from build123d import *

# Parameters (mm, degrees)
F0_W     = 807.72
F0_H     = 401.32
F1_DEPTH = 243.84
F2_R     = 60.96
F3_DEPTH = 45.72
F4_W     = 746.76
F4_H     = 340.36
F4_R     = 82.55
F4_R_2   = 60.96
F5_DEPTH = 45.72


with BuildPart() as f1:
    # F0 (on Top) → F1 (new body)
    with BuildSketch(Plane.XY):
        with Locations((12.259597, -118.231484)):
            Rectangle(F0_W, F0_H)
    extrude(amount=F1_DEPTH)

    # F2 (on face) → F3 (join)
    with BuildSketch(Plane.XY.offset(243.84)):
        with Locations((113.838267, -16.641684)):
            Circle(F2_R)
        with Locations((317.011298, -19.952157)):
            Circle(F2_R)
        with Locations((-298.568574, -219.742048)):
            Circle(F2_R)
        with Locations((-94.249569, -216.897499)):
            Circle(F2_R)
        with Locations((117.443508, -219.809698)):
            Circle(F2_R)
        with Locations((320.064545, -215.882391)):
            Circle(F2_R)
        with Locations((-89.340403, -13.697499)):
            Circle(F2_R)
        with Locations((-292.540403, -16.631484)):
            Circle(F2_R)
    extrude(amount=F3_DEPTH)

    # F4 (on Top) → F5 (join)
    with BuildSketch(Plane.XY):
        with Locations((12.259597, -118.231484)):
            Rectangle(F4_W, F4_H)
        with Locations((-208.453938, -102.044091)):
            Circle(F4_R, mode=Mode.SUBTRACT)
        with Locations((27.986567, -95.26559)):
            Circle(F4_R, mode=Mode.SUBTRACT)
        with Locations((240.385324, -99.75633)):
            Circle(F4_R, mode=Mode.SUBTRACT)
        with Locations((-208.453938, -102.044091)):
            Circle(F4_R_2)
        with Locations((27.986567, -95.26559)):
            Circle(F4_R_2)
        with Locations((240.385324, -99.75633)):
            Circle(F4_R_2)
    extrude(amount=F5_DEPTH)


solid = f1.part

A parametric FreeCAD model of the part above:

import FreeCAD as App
import Part
import Sketcher

V = App.Vector
Q = App.Units.Quantity


def add_polygon(sketch, points):
    """Adds a closed chain of lines whose ends are joined by coincident constraints."""
    first, n = sketch.GeometryCount, len(points)
    for a, b in zip(points, points[1:] + points[:1]):
        sketch.addGeometry(Part.LineSegment(App.Vector(*a, 0), App.Vector(*b, 0)), False)
    for i in range(n):
        sketch.addConstraint(Sketcher.Constraint("Coincident", first + i, 2, first + (i + 1) % n, 1))

doc = App.newDocument("Part")
params = doc.addObject("Spreadsheet::Sheet", "Params")
for row, (alias, value) in enumerate([
    ("sketch1_width", "31.8 in"),
    ("sketch1_height", "15.8 in"),
    ("pad1_length", "9.6 in"),
    ("sketch2_diameter", "4.8 in"),
    ("pad2_length", "1.8 in"),
    ("sketch3_diameter", "6.5 in"),
    ("sketch3_diameter2", "4.8 in"),
    ("sketch3_width", "29.4 in"),
    ("sketch3_height", "13.4 in"),
    ("pad3_length", "1.8 in"),
], start=1):
    params.set(f"A{row}", alias)
    params.set(f"B{row}", "=" + value)
    params.setAlias(f"B{row}", alias)

body = doc.addObject("PartDesign::Body", "Body")

# Sketch on XY plane
sketch1 = doc.addObject("Sketcher::SketchObject", "Sketch")
body.addObject(sketch1)
sketch1.AttachmentSupport = (doc.XY_Plane, [""])
sketch1.MapMode = "FlatFace"
add_polygon(sketch1, [(-392, 82), (-392, -319), (416, -319), (416, 82)])  # lines 0-3
sketch1.addConstraint(Sketcher.Constraint("Vertical", 0))
sketch1.addConstraint(Sketcher.Constraint("Horizontal", 1))
sketch1.addConstraint(Sketcher.Constraint("Vertical", 2))
sketch1.addConstraint(Sketcher.Constraint("Horizontal", 3))
sketch1.addConstraint(Sketcher.Constraint("DistanceX", 1, 1, 1, 2, Q("31.8 in")))
sketch1.addConstraint(Sketcher.Constraint("DistanceY", 0, 2, 0, 1, Q("15.8 in")))
sketch1.addConstraint(Sketcher.Constraint("DistanceX", 0, 2, -1, 1, 391.600403))
sketch1.addConstraint(Sketcher.Constraint("DistanceY", 0, 2, -1, 1, 318.891484))
sketch1.setExpression("Constraints[8]", "Params.sketch1_width")
sketch1.setExpression("Constraints[9]", "Params.sketch1_height")
pad1 = doc.addObject("PartDesign::Pad", "Pad")
body.addObject(pad1)
pad1.Profile = sketch1
pad1.setExpression("Length", "Params.pad1_length")

# Sketch on XY plane
sketch2 = doc.addObject("Sketcher::SketchObject", "Sketch001")
body.addObject(sketch2)
sketch2.AttachmentSupport = (doc.XY_Plane, [""])
sketch2.MapMode = "FlatFace"
sketch2.AttachmentOffset = App.Placement(V(0, 0, 9.6 * 25.4), App.Rotation())
sketch2.addGeometry(Part.Circle(V(114, -17, 0), V(0, 0, 1), 61), False)
sketch2.addGeometry(Part.Circle(V(317, -20, 0), V(0, 0, 1), 61), False)
sketch2.addGeometry(Part.Circle(V(-299, -220, 0), V(0, 0, 1), 61), False)
sketch2.addGeometry(Part.Circle(V(-94, -217, 0), V(0, 0, 1), 61), False)
sketch2.addGeometry(Part.Circle(V(117, -220, 0), V(0, 0, 1), 61), False)
sketch2.addGeometry(Part.Circle(V(320, -216, 0), V(0, 0, 1), 61), False)
sketch2.addGeometry(Part.Circle(V(-89, -14, 0), V(0, 0, 1), 61), False)
sketch2.addGeometry(Part.Circle(V(-293, -17, 0), V(0, 0, 1), 61), False)
sketch2.addConstraint(Sketcher.Constraint("Equal", 0, 1))
sketch2.addConstraint(Sketcher.Constraint("Equal", 1, 2))
sketch2.addConstraint(Sketcher.Constraint("Equal", 2, 3))
sketch2.addConstraint(Sketcher.Constraint("Equal", 3, 4))
sketch2.addConstraint(Sketcher.Constraint("Equal", 4, 5))
sketch2.addConstraint(Sketcher.Constraint("Equal", 5, 6))
sketch2.addConstraint(Sketcher.Constraint("Equal", 6, 7))
sketch2.addConstraint(Sketcher.Constraint("Diameter", 0, Q("4.8 in")))
sketch2.addConstraint(Sketcher.Constraint("DistanceY", 3, 3, 6, 3, Q("8 in")))
sketch2.addConstraint(Sketcher.Constraint("DistanceX", 7, 3, 6, 3, Q("8 in")))
sketch2.addConstraint(Sketcher.Constraint("DistanceX", -1, 1, 1, 3, 317.011298))
sketch2.addConstraint(Sketcher.Constraint("DistanceY", 3, 3, -1, 1, 216.897499))
sketch2.addConstraint(Sketcher.Constraint("DistanceY", 4, 3, -1, 1, 219.809698))
sketch2.addConstraint(Sketcher.Constraint("DistanceX", 6, 3, 1, 3, 406.351701))
sketch2.addConstraint(Sketcher.Constraint("DistanceY", 0, 3, 7, 3, 0.0102))
sketch2.addConstraint(Sketcher.Constraint("DistanceY", 2, 3, -1, 1, 219.742048))
sketch2.addConstraint(Sketcher.Constraint("DistanceX", 3, 3, -1, 1, 94.249569))
sketch2.addConstraint(Sketcher.Constraint("DistanceY", 5, 3, -1, 1, 215.882391))
sketch2.addConstraint(Sketcher.Constraint("DistanceX", 0, 3, 1, 3, 203.173031))
sketch2.addConstraint(Sketcher.Constraint("DistanceX", 2, 3, 0, 3, 412.406841))
sketch2.addConstraint(Sketcher.Constraint("DistanceY", 2, 3, 1, 3, 199.789891))
sketch2.addConstraint(Sketcher.Constraint("DistanceX", 0, 3, 4, 3, 3.605241))
sketch2.addConstraint(Sketcher.Constraint("DistanceX", 0, 3, 5, 3, 206.226278))
sketch2.addConstraint(Sketcher.Constraint("DistanceY", 0, 3, -1, 1, 16.641684))
sketch2.setExpression("Constraints[7]", "Params.sketch2_diameter")
pad2 = doc.addObject("PartDesign::Pad", "Pad001")
body.addObject(pad2)
pad2.Profile = sketch2
pad2.setExpression("Length", "Params.pad2_length")

# Sketch on XY plane
sketch3 = doc.addObject("Sketcher::SketchObject", "Sketch002")
body.addObject(sketch3)
sketch3.AttachmentSupport = (doc.XY_Plane, [""])
sketch3.MapMode = "FlatFace"
add_polygon(sketch3, [(-361, 52), (-361, -288), (386, -288), (386, 52)])  # lines 0-3
sketch3.addGeometry(Part.Circle(V(-208, -102, 0), V(0, 0, 1), 83), False)  # 4
sketch3.addGeometry(Part.Circle(V(240, -100, 0), V(0, 0, 1), 83), False)  # 5
sketch3.addGeometry(Part.Circle(V(28, -95, 0), V(0, 0, 1), 83), False)  # 6
sketch3.addGeometry(Part.Circle(V(-208, -102, 0), V(0, 0, 1), 61), False)  # 7
sketch3.addGeometry(Part.Circle(V(28, -95, 0), V(0, 0, 1), 61), False)  # 8
sketch3.addGeometry(Part.Circle(V(240, -100, 0), V(0, 0, 1), 61), False)  # 9
sketch3.addConstraint(Sketcher.Constraint("Vertical", 0))
sketch3.addConstraint(Sketcher.Constraint("Horizontal", 1))
sketch3.addConstraint(Sketcher.Constraint("Vertical", 2))
sketch3.addConstraint(Sketcher.Constraint("Horizontal", 3))
sketch3.addConstraint(Sketcher.Constraint("Coincident", 7, 3, 4, 3))
sketch3.addConstraint(Sketcher.Constraint("Coincident", 8, 3, 6, 3))
sketch3.addConstraint(Sketcher.Constraint("Coincident", 9, 3, 5, 3))
sketch3.addConstraint(Sketcher.Constraint("Equal", 4, 5))
sketch3.addConstraint(Sketcher.Constraint("Equal", 5, 6))
sketch3.addConstraint(Sketcher.Constraint("Equal", 7, 8))
sketch3.addConstraint(Sketcher.Constraint("Equal", 8, 9))
sketch3.addConstraint(Sketcher.Constraint("Diameter", 4, Q("6.5 in")))
sketch3.addConstraint(Sketcher.Constraint("Diameter", 7, Q("4.8 in")))
sketch3.addConstraint(Sketcher.Constraint("DistanceX", 1, 1, 1, 2, Q("29.4 in")))
sketch3.addConstraint(Sketcher.Constraint("DistanceY", 0, 2, 0, 1, Q("13.4 in")))
sketch3.addConstraint(Sketcher.Constraint("DistanceY", 4, 3, 6, 3, 6.778501))
sketch3.addConstraint(Sketcher.Constraint("DistanceX", 4, 3, -1, 1, 208.453938))
sketch3.addConstraint(Sketcher.Constraint("DistanceY", 4, 3, -1, 1, 102.044091))
sketch3.addConstraint(Sketcher.Constraint("DistanceY", 5, 3, -1, 1, 99.75633))
sketch3.addConstraint(Sketcher.Constraint("DistanceX", 4, 3, 5, 3, 448.839262))
sketch3.addConstraint(Sketcher.Constraint("DistanceX", 0, 2, 6, 3, 389.10697))
sketch3.addConstraint(Sketcher.Constraint("DistanceX", -1, 1, 6, 3, 27.986567))
sketch3.addConstraint(Sketcher.Constraint("DistanceY", 0, 2, -1, 1, 288.411484))
sketch3.setExpression("Constraints[15]", "Params.sketch3_diameter")
sketch3.setExpression("Constraints[16]", "Params.sketch3_diameter2")
sketch3.setExpression("Constraints[17]", "Params.sketch3_width")
sketch3.setExpression("Constraints[18]", "Params.sketch3_height")
pad3 = doc.addObject("PartDesign::Pad", "Pad002")
body.addObject(pad3)
pad3.Profile = sketch3
pad3.setExpression("Length", "Params.pad3_length")

doc.recompute()
